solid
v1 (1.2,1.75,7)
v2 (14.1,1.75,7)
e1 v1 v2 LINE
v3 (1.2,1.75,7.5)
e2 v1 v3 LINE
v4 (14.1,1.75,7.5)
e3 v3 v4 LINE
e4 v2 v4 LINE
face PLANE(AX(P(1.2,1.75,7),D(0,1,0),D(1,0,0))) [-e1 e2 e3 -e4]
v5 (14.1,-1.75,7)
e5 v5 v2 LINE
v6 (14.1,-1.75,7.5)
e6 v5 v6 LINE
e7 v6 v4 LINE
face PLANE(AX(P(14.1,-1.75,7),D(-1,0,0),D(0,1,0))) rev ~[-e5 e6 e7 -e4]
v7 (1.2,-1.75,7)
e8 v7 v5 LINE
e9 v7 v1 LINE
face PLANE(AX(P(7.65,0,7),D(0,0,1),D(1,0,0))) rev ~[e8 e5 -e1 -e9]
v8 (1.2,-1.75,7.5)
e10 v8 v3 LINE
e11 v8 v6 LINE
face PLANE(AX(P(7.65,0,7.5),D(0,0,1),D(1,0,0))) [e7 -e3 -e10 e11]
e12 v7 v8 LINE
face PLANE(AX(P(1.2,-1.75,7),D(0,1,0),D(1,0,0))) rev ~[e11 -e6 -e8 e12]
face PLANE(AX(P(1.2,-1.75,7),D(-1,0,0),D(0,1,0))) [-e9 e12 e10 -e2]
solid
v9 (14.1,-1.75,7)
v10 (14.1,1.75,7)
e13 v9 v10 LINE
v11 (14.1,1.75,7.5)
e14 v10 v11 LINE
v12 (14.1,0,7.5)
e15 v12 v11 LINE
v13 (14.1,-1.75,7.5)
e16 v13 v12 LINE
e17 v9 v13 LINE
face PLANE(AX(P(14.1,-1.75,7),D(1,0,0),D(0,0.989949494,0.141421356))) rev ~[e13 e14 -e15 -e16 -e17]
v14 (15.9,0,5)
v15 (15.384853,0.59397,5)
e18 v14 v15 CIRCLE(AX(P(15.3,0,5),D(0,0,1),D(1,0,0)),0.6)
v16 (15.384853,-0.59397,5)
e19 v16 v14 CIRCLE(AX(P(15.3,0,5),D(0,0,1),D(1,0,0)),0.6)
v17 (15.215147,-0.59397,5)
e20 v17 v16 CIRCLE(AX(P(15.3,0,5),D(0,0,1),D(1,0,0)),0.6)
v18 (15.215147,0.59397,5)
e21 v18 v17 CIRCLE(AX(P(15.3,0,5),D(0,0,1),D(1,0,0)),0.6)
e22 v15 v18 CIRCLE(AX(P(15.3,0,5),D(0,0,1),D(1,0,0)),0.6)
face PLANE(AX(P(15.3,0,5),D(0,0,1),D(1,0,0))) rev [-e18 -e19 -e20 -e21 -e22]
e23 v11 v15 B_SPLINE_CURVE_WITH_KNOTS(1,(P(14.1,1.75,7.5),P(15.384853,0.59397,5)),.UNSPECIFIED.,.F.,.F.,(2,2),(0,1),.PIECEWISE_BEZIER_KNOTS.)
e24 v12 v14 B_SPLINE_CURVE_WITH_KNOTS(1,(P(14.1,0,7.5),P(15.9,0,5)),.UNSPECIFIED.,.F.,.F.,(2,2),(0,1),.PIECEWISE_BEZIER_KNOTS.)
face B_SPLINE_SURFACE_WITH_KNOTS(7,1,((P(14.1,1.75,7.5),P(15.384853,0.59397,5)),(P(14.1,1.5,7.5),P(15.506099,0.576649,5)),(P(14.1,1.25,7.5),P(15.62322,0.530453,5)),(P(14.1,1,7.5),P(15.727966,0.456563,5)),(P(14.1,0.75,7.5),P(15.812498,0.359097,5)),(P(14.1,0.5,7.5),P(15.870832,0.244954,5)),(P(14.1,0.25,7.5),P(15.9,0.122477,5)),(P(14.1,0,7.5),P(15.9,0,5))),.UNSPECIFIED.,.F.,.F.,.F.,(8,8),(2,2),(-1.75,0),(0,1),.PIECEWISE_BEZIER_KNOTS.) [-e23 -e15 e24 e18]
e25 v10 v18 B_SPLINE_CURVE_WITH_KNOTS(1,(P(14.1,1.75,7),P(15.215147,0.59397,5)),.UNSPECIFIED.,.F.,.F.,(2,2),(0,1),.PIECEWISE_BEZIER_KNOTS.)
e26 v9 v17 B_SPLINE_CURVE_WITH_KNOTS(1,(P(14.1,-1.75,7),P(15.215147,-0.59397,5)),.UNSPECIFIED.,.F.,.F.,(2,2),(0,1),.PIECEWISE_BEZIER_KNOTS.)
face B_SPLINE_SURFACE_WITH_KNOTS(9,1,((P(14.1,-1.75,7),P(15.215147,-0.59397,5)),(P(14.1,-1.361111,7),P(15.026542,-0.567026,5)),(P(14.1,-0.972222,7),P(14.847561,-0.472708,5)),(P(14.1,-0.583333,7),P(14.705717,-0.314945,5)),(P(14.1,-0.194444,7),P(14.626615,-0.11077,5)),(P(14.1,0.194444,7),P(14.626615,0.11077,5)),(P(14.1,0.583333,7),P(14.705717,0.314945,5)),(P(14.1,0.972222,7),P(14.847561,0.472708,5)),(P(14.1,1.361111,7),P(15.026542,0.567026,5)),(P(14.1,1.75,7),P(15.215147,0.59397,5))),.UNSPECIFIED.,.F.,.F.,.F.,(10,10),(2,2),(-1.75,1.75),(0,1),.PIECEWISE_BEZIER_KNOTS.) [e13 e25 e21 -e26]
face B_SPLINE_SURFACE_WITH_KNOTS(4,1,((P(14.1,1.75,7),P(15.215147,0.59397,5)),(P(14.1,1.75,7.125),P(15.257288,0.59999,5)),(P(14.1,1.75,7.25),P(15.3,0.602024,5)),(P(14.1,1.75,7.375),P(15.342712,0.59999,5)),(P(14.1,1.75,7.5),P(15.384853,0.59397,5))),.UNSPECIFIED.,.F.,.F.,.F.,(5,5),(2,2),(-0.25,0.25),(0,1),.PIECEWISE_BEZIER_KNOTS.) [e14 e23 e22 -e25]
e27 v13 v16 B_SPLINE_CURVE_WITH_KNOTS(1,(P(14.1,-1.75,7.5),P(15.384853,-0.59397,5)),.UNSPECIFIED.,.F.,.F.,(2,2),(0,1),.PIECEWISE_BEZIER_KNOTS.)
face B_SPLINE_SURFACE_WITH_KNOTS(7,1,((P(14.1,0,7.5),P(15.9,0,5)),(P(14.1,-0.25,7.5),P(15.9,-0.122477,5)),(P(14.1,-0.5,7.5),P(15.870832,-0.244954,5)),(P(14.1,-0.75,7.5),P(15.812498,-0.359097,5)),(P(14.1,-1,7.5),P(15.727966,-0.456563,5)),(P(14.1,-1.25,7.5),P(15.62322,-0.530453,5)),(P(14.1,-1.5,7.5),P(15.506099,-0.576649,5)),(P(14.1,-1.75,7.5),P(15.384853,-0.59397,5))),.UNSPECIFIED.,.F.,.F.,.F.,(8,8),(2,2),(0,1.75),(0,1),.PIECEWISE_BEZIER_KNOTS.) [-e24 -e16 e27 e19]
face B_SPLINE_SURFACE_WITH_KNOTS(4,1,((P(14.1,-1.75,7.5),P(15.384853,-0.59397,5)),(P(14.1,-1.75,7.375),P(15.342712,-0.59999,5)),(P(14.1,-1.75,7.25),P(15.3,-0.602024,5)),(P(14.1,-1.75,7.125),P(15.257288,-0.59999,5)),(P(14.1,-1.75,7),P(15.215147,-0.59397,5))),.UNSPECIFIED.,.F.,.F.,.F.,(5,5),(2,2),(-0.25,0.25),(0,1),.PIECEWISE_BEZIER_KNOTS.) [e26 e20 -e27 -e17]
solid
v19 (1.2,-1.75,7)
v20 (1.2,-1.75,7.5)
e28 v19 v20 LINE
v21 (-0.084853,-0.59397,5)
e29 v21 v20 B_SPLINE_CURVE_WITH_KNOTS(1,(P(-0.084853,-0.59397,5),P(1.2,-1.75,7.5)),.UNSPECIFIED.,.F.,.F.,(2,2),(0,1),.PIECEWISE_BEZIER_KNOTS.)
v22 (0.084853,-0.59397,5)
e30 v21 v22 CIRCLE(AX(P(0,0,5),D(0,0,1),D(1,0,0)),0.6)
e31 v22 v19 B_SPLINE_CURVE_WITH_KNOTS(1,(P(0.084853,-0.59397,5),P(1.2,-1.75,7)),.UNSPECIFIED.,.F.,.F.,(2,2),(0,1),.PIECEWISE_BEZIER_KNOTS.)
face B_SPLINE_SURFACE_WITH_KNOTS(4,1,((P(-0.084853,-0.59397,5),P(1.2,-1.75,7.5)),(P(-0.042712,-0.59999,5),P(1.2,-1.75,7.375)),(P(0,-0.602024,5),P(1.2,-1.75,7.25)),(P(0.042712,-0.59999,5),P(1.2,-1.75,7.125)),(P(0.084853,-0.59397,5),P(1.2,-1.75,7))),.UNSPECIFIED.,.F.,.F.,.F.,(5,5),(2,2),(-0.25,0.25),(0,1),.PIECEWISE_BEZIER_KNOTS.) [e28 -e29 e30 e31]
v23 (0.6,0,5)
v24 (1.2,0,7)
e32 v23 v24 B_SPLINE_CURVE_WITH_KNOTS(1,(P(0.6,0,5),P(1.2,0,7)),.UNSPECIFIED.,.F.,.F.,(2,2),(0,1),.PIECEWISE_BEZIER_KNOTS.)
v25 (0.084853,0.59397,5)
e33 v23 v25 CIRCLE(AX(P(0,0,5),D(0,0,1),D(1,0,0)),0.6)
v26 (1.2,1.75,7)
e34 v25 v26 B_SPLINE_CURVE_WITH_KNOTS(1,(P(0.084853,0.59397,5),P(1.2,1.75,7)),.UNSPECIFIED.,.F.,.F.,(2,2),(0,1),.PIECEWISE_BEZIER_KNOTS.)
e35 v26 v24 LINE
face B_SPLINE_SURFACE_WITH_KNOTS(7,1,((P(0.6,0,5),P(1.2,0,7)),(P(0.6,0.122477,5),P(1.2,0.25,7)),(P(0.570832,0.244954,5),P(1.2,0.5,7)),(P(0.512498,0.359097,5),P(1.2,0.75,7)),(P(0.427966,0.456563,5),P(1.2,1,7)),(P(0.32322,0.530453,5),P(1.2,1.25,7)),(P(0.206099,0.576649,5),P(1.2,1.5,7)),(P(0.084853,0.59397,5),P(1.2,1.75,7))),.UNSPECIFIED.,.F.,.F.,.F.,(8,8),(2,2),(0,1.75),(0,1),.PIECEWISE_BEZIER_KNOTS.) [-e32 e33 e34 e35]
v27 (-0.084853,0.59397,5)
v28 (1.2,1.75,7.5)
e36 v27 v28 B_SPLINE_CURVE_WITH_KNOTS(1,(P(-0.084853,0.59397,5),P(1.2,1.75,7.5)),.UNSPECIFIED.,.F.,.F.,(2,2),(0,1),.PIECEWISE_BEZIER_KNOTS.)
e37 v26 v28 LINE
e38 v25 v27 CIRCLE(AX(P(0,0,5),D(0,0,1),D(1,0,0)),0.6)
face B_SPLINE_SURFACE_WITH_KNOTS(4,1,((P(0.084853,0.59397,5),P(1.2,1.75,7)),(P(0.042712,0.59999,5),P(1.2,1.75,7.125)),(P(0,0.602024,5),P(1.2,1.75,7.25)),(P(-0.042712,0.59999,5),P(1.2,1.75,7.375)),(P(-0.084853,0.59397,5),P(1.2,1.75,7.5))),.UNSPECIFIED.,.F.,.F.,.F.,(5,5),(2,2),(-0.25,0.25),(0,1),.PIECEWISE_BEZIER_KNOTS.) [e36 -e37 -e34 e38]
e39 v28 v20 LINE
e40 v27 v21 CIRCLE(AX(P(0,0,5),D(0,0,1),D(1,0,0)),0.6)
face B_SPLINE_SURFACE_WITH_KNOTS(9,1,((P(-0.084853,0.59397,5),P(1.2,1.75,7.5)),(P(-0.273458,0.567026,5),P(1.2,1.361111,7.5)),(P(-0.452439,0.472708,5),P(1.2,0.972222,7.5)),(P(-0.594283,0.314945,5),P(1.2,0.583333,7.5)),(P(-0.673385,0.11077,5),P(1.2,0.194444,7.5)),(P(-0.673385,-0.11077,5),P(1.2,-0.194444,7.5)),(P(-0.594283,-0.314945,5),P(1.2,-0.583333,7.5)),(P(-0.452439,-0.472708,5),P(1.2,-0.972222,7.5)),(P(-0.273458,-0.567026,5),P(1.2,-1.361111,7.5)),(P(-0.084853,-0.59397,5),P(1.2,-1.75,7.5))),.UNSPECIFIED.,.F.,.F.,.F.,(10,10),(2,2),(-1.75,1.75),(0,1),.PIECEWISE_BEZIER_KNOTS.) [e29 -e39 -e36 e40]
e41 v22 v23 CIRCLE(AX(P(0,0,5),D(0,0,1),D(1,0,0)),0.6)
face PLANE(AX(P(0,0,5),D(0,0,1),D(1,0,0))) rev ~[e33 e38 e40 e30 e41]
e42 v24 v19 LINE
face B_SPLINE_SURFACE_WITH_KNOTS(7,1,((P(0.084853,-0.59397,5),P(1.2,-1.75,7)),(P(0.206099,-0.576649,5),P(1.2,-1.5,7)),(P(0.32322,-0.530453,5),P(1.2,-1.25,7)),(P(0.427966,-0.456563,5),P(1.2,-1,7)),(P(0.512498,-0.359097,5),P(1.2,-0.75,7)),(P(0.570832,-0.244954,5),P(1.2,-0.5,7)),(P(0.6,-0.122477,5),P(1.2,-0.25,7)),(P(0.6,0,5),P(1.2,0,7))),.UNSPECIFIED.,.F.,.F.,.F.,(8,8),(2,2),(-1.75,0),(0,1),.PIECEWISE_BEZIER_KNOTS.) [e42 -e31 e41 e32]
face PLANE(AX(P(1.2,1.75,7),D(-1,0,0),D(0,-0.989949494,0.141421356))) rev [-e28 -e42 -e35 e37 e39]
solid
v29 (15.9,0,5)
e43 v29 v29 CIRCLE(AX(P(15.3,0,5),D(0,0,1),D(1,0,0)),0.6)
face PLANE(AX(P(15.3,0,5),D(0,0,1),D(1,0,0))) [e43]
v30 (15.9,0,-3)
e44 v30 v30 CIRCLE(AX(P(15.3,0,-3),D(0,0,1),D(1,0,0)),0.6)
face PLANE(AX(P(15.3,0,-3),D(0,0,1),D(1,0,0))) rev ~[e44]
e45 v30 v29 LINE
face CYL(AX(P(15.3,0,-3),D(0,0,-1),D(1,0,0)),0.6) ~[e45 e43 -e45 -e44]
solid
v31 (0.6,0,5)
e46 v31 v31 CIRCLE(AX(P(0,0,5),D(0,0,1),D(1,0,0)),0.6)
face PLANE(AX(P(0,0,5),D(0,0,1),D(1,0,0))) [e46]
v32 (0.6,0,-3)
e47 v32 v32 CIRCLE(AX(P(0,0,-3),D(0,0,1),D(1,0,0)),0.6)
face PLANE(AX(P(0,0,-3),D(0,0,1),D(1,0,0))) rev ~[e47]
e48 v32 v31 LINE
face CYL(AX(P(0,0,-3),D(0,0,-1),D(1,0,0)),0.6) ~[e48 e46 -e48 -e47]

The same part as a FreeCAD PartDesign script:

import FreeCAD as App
import Part
import Sketcher

V = App.Vector

doc = App.newDocument("Part")
body = doc.addObject("PartDesign::Body", "Body")
body.AllowCompound = True

# Sketch on XY plane
sketch1 = body.newObject("Sketcher::SketchObject", "Sketch")
sketch1.AttachmentSupport = (doc.getObject("XY_Plane"), [""])
sketch1.MapMode = "FlatFace"
sketch1.AttachmentOffset = App.Placement(V(0, 0, -3), App.Rotation())
sketch1.addGeometry([
    Part.Circle(V(0, 0, 0), V(0, 0, 1), 0.6),
    Part.Circle(V(15.3, 0, 0), V(0, 0, 1), 0.6),
], False)
sketch1.addConstraint([
    Sketcher.Constraint("Coincident", 0, 3, -1, 1),
    Sketcher.Constraint("Equal", 0, 1),
    Sketcher.Constraint("PointOnObject", 1, 3, -1),
    Sketcher.Constraint("Diameter", 0, 1.2),
    Sketcher.Constraint("DistanceX", -1, 1, 1, 3, 15.3),
])
pad1 = body.newObject("PartDesign::Pad", "Pad")
pad1.Profile = sketch1
pad1.Length = 8
body2 = doc.addObject("PartDesign::Body", "Body001")

# Sketch on XY plane
sketch2 = body2.newObject("Sketcher::SketchObject", "Sketch001")
sketch2.AttachmentSupport = (doc.getObject("XY_Plane001"), [""])
sketch2.MapMode = "FlatFace"
sketch2.AttachmentOffset = App.Placement(V(0, 0, 7), App.Rotation())
sketch2.addGeometry([
    Part.LineSegment(V(1.2, 1.8, 0), V(1.2, -1.8, 0)),
    Part.LineSegment(V(1.2, -1.8, 0), V(14.1, -1.8, 0)),
    Part.LineSegment(V(14.1, -1.8, 0), V(14.1, 1.8, 0)),
    Part.LineSegment(V(14.1, 1.8, 0), V(1.2, 1.8, 0)),
], False)
sketch2.addConstraint([
    Sketcher.Constraint("Coincident", 0, 2, 1, 1),
    Sketcher.Constraint("Coincident", 1, 2, 2, 1),
    Sketcher.Constraint("Coincident", 2, 2, 3, 1),
    Sketcher.Constraint("Coincident", 3, 2, 0, 1),
    Sketcher.Constraint("Vertical", 0),
    Sketcher.Constraint("Horizontal", 1),
    Sketcher.Constraint("Vertical", 2),
    Sketcher.Constraint("Horizontal", 3),
    Sketcher.Constraint("DistanceX", 1, 1, 1, 2, 12.9),
    Sketcher.Constraint("DistanceY", 0, 2, 0, 1, 3.5),
    Sketcher.Constraint("DistanceX", -1, 1, 0, 2, 1.2),
    Sketcher.Constraint("DistanceY", 0, 2, -1, 1, 1.75),
])
pad2 = body2.newObject("PartDesign::Pad", "Pad001")
pad2.Profile = sketch2
pad2.Length = 0.5
body3 = doc.addObject("PartDesign::Body", "Body002")

# Sketch on YZ plane
sketch3 = body3.newObject("Sketcher::SketchObject", "Sketch002")
sketch3.AttachmentSupport = (doc.getObject("YZ_Plane002"), [""])
sketch3.MapMode = "FlatFace"
sketch3.AttachmentOffset = App.Placement(V(0, 0, 14.1), App.Rotation())
sketch3.addGeometry([
    Part.LineSegment(V(-1.8, 7.5, 0), V(-1.8, 7, 0)),
    Part.LineSegment(V(-1.8, 7, 0), V(1.8, 7, 0)),
    Part.LineSegment(V(1.8, 7, 0), V(1.8, 7.5, 0)),
    Part.LineSegment(V(1.8, 7.5, 0), V(-1.8, 7.5, 0)),
], False)
sketch3.addConstraint([
    Sketcher.Constraint("Coincident", 0, 2, 1, 1),
    Sketcher.Constraint("Coincident", 1, 2, 2, 1),
    Sketcher.Constraint("Coincident", 2, 2, 3, 1),
    Sketcher.Constraint("Coincident", 3, 2, 0, 1),
    Sketcher.Constraint("Vertical", 0),
    Sketcher.Constraint("Horizontal", 1),
    Sketcher.Constraint("Vertical", 2),
    Sketcher.Constraint("Horizontal", 3),
    Sketcher.Constraint("DistanceX", 1, 1, 1, 2, 3.5),
    Sketcher.Constraint("DistanceY", 0, 2, 0, 1, 0.5),
    Sketcher.Constraint("DistanceY", -1, 1, 0, 2, 7.0),
    Sketcher.Constraint("DistanceX", 0, 2, -1, 1, 1.75),
])

# Sketch on XY plane
sketch4 = body3.newObject("Sketcher::SketchObject", "Sketch003")
sketch4.AttachmentSupport = (doc.getObject("XY_Plane002"), [""])
sketch4.MapMode = "FlatFace"
sketch4.AttachmentOffset = App.Placement(V(0, 0, 5), App.Rotation())
sketch4.addGeometry(Part.Circle(V(15.3, 0, 0), V(0, 0, 1), 0.6), False)
sketch4.addConstraint([
    Sketcher.Constraint("PointOnObject", 0, 3, -1),
    Sketcher.Constraint("Diameter", 0, 1.2),
    Sketcher.Constraint("DistanceX", -1, 1, 0, 3, 15.3),
])

additiveloft = body3.newObject("PartDesign::AdditiveLoft", "AdditiveLoft")
additiveloft.Profile = sketch3
additiveloft.Sections = [sketch4]
body4 = doc.addObject("PartDesign::Body", "Body003")

# Sketch on XY plane
sketch5 = body4.newObject("Sketcher::SketchObject", "Sketch004")
sketch5.AttachmentSupport = (doc.getObject("XY_Plane003"), [""])
sketch5.MapMode = "FlatFace"
sketch5.AttachmentOffset = App.Placement(V(0, 0, 5), App.Rotation())
sketch5.addGeometry(Part.Circle(V(0, 0, 0), V(0, 0, 1), 0.6), False)
sketch5.addConstraint([
    Sketcher.Constraint("Coincident", 0, 3, -1, 1),
    Sketcher.Constraint("Diameter", 0, 1.2),
])

# Sketch on YZ plane
sketch6 = body4.newObject("Sketcher::SketchObject", "Sketch005")
sketch6.AttachmentSupport = (doc.getObject("YZ_Plane003"), [""])
sketch6.MapMode = "FlatFace"
sketch6.AttachmentOffset = App.Placement(V(0, 0, 1.2), App.Rotation())
sketch6.addGeometry([
    Part.LineSegment(V(1.8, 7.5, 0), V(1.8, 7, 0)),
    Part.LineSegment(V(1.8, 7, 0), V(-1.8, 7, 0)),
    Part.LineSegment(V(-1.8, 7, 0), V(-1.8, 7.5, 0)),
    Part.LineSegment(V(-1.8, 7.5, 0), V(1.8, 7.5, 0)),
], False)
sketch6.addConstraint([
    Sketcher.Constraint("Coincident", 0, 2, 1, 1),
    Sketcher.Constraint("Coincident", 1, 2, 2, 1),
    Sketcher.Constraint("Coincident", 2, 2, 3, 1),
    Sketcher.Constraint("Coincident", 3, 2, 0, 1),
    Sketcher.Constraint("Vertical", 0),
    Sketcher.Constraint("Horizontal", 1),
    Sketcher.Constraint("Vertical", 2),
    Sketcher.Constraint("Horizontal", 3),
    Sketcher.Constraint("DistanceX", 1, 2, 1, 1, 3.5),
    Sketcher.Constraint("DistanceY", 0, 2, 0, 1, 0.5),
    Sketcher.Constraint("DistanceY", -1, 1, 0, 2, 7.0),
    Sketcher.Constraint("DistanceX", -1, 1, 0, 2, 1.75),
])

additiveloft2 = body4.newObject("PartDesign::AdditiveLoft", "AdditiveLoft001")
additiveloft2.Profile = sketch5
additiveloft2.Sections = [sketch6]

doc.recompute()
